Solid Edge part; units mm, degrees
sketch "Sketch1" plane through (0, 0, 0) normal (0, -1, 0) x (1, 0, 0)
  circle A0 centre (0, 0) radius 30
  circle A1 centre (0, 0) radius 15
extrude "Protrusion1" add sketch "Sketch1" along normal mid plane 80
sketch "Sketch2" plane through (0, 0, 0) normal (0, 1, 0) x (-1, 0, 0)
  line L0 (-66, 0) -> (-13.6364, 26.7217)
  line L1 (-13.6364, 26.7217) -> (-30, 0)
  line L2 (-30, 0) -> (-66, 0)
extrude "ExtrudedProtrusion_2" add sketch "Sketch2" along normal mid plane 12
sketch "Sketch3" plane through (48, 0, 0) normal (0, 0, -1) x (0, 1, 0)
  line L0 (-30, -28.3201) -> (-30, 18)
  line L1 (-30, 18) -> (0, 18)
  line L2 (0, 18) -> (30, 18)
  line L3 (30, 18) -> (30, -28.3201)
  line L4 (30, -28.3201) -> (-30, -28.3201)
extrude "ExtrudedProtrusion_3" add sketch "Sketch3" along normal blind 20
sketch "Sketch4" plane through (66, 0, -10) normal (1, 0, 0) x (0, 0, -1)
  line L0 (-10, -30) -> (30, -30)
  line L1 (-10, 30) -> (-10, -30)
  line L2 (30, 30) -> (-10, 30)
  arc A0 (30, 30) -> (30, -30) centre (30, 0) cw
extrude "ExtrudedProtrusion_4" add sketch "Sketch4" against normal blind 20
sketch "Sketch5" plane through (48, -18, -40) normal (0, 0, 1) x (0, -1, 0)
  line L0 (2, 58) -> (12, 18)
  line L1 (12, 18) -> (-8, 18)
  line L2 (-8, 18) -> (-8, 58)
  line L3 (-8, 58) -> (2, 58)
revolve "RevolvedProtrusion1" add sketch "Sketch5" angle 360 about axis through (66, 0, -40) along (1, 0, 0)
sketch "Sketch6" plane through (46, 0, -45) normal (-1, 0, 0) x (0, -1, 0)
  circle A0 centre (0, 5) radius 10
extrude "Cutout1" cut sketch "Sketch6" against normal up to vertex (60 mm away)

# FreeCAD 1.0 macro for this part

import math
import FreeCAD as App
import Part
import Sketcher

V = App.Vector
Q = App.Units.Quantity


def add_polygon(sketch, points):
    """Adds a closed chain of lines whose ends are joined by coincident constraints."""
    first, n = sketch.GeometryCount, len(points)
    for a, b in zip(points, points[1:] + points[:1]):
        sketch.addGeometry(Part.LineSegment(App.Vector(*a, 0), App.Vector(*b, 0)), False)
    for i in range(n):
        sketch.addConstraint(Sketcher.Constraint("Coincident", first + i, 2, first + (i + 1) % n, 1))

doc = App.newDocument("Part")
body = doc.addObject("PartDesign::Body", "Body")

sketch1 = body.newObject("Sketcher::SketchObject", "Sketch")
sketch1.AttachmentSupport = (doc.getObject("XZ_Plane"), [""])
sketch1.MapMode = "FlatFace"
sketch1.addGeometry(Part.Circle(V(0, 0, 0), V(0, 0, 1), 30), False)
sketch1.addGeometry(Part.Circle(V(0, 0, 0), V(0, 0, 1), 15), False)
sketch1.addConstraint(Sketcher.Constraint("Coincident", 0, 3, -1, 1))
sketch1.addConstraint(Sketcher.Constraint("Coincident", 1, 3, -1, 1))
sketch1.addConstraint(Sketcher.Constraint("Diameter", 0, Q("60 mm")))
sketch1.addConstraint(Sketcher.Constraint("Diameter", 1, Q("30 mm")))
pad1 = body.newObject("PartDesign::Pad", "Pad")
pad1.Profile = sketch1
pad1.Length = 80
pad1.Midplane = True

sketch2 = body.newObject("Sketcher::SketchObject", "Sketch001")
sketch2.AttachmentSupport = (doc.getObject("XZ_Plane"), [""])
sketch2.MapMode = "FlatFace"
add_polygon(sketch2, [(14, 27), (66, 0), (30, 0)])
sketch2.addConstraint(Sketcher.Constraint("Horizontal", 1))
sketch2.addConstraint(Sketcher.Constraint("PointOnObject", 0, 2, -1))
sketch2.addConstraint(Sketcher.Constraint("DistanceX", 1, 2, 1, 1, Q("36 mm")))
sketch2.addConstraint(Sketcher.Constraint("DistanceX", -1, 1, 0, 2, Q("66 mm")))
sketch2.addConstraint(Sketcher.Constraint("Distance", 2, Q("31.334 mm")))
sketch2.addConstraint(Sketcher.Constraint("Distance", 0, Q("58.7877 mm")))
pad2 = body.newObject("PartDesign::Pad", "Pad001")
pad2.Profile = sketch2
pad2.Length = 12
pad2.Midplane = True

sketch3 = body.newObject("Sketcher::SketchObject", "Sketch002")
sketch3.AttachmentSupport = (doc.getObject("XY_Plane"), [""])
sketch3.MapMode = "FlatFace"
add_polygon(sketch3, [(66, -30), (20, -30), (20, 30), (66, 30)])
sketch3.addConstraint(Sketcher.Constraint("Horizontal", 0))
sketch3.addConstraint(Sketcher.Constraint("Vertical", 1))
sketch3.addConstraint(Sketcher.Constraint("Horizontal", 2))
sketch3.addConstraint(Sketcher.Constraint("Vertical", 3))
sketch3.addConstraint(Sketcher.Constraint("DistanceY", 1, 1, 1, 2, Q("60 mm")))
sketch3.addConstraint(Sketcher.Constraint("DistanceY", 0, 2, -1, 1, Q("30 mm")))
sketch3.addConstraint(Sketcher.Constraint("DistanceX", -1, 1, 2, 2, Q("66 mm")))
sketch3.addConstraint(Sketcher.Constraint("DistanceX", 0, 2, 0, 1, Q("46.32 mm")))
pad3 = body.newObject("PartDesign::Pad", "Pad002")
pad3.Profile = sketch3
pad3.Length = 20
pad3.Reversed = True

sketch4 = body.newObject("Sketcher::SketchObject", "Sketch003")
sketch4.AttachmentSupport = (doc.getObject("YZ_Plane"), [""])
sketch4.MapMode = "FlatFace"
sketch4.AttachmentOffset = App.Placement(V(0, 0, 66), App.Rotation())
sketch4.addGeometry(Part.LineSegment(V(30, 0, 0), V(-30, 0, 0)), False)
sketch4.addGeometry(Part.LineSegment(V(-30, 0, 0), V(-30, -40, 0)), False)
sketch4.addGeometry(Part.ArcOfCircle(Part.Circle(V(0, -40, 0), V(0, 0, 1), 30), math.radians(180), math.radians(360)), False)
sketch4.addGeometry(Part.LineSegment(V(30, -40, 0), V(30, 0, 0)), False)
sketch4.addConstraint(Sketcher.Constraint("Coincident", 0, 2, 1, 1))
sketch4.addConstraint(Sketcher.Constraint("Tangent", 1, 2, 2, 1))
sketch4.addConstraint(Sketcher.Constraint("Tangent", 2, 2, 3, 1))
sketch4.addConstraint(Sketcher.Constraint("Coincident", 3, 2, 0, 1))
sketch4.addConstraint(Sketcher.Constraint("Horizontal", 0))
sketch4.addConstraint(Sketcher.Constraint("Vertical", 1))
sketch4.addConstraint(Sketcher.Constraint("Vertical", 3))
sketch4.addConstraint(Sketcher.Constraint("Symmetric", 0, 2, 3, 2, -1, 1))
sketch4.addConstraint(Sketcher.Constraint("Radius", 2, Q("30 mm")))
sketch4.addConstraint(Sketcher.Constraint("DistanceY", 1, 2, 1, 1, Q("40 mm")))
pad4 = body.newObject("PartDesign::Pad", "Pad003")
pad4.Profile = sketch4
pad4.Length = 20
pad4.Reversed = True

sketch5 = body.newObject("Sketcher::SketchObject", "Sketch004")
sketch5.AttachmentSupport = (doc.getObject("XY_Plane"), [""])
sketch5.MapMode = "FlatFace"
sketch5.AttachmentOffset = App.Placement(V(0, 0, -40), App.Rotation())
add_polygon(sketch5, [(66, -30), (106, -20), (106, -10), (66, -10)])
sketch5.addConstraint(Sketcher.Constraint("Vertical", 1))
sketch5.addConstraint(Sketcher.Constraint("Horizontal", 2))
sketch5.addConstraint(Sketcher.Constraint("Vertical", 3))
sketch5.addConstraint(Sketcher.Constraint("DistanceX", 2, 2, 2, 1, Q("40 mm")))
sketch5.addConstraint(Sketcher.Constraint("DistanceY", 1, 1, 1, 2, Q("10 mm")))
sketch5.addConstraint(Sketcher.Constraint("DistanceY", 3, 2, 3, 1, Q("20 mm")))
sketch5.addConstraint(Sketcher.Constraint("DistanceX", -1, 1, 0, 2, Q("106 mm")))
sketch5.addConstraint(Sketcher.Constraint("DistanceY", 0, 2, -1, 1, Q("20 mm")))
revolution = body.newObject("PartDesign::Revolution", "Revolution")
revolution.Profile = sketch5
revolution.ReferenceAxis = (sketch5, ["H_Axis"])
revolution.Angle = 360

sketch6 = body.newObject("Sketcher::SketchObject", "Sketch005")
sketch6.AttachmentSupport = (doc.getObject("YZ_Plane"), [""])
sketch6.MapMode = "FlatFace"
sketch6.AttachmentOffset = App.Placement(V(0, 0, 46), App.Rotation())
sketch6.addGeometry(Part.Circle(V(0, -40, 0), V(0, 0, 1), 10), False)
sketch6.addConstraint(Sketcher.Constraint("PointOnObject", 0, 3, -2))
sketch6.addConstraint(Sketcher.Constraint("Diameter", 0, Q("20 mm")))
sketch6.addConstraint(Sketcher.Constraint("DistanceY", 0, 3, -1, 1, Q("40 mm")))
pocket1 = body.newObject("PartDesign::Pocket", "Pocket")
pocket1.Profile = sketch6
pocket1.Length = 60
pocket1.Reversed = True

doc.recompute()
